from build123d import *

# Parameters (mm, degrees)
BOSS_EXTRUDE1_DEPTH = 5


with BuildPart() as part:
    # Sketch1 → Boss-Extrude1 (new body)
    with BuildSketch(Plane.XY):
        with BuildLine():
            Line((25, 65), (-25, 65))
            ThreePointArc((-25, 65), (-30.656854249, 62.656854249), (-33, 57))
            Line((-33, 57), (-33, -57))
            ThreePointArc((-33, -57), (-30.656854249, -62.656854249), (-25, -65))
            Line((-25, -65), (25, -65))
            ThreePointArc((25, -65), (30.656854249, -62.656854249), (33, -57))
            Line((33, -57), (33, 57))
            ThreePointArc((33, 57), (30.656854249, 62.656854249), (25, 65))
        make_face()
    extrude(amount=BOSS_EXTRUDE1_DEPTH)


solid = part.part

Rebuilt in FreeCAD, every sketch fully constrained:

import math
import FreeCAD as App
import Part
import Sketcher

doc = App.newDocument("Part")
params = doc.addObject("Spreadsheet::Sheet", "Params")
for row, (alias, value) in enumerate([
    ("sketch1_radius", "8 mm"),
    ("sketch1_width", "50 mm"),
    ("sketch1_height", "114 mm"),
    ("pad1_length", "5 mm"),
], start=1):
    params.set(f"A{row}", alias)
    params.set(f"B{row}", "=" + value)
    params.setAlias(f"B{row}", alias)

body = doc.addObject("PartDesign::Body", "Body")

sketch1 = doc.addObject("Sketcher::SketchObject", "Sketch")
body.addObject(sketch1)
sketch1.AttachmentSupport = (doc.XY_Plane, [""])
sketch1.MapMode = "FlatFace"
sketch1.addGeometry([
    Part.LineSegment(App.Vector(25, 65, 0), App.Vector(-25, 65, 0)),
    Part.ArcOfCircle(Part.Circle(App.Vector(-25, 57, 0), App.Vector(0, 0, 1), 8), math.radians(90), math.radians(180)),
    Part.LineSegment(App.Vector(-33, 57, 0), App.Vector(-33, -57, 0)),
    Part.ArcOfCircle(Part.Circle(App.Vector(-25, -57, 0), App.Vector(0, 0, 1), 8), math.radians(-180), math.radians(-90)),
    Part.LineSegment(App.Vector(-25, -65, 0), App.Vector(25, -65, 0)),
    Part.ArcOfCircle(Part.Circle(App.Vector(25, -57, 0), App.Vector(0, 0, 1), 8), math.radians(-90), math.radians(0)),
    Part.LineSegment(App.Vector(33, -57, 0), App.Vector(33, 57, 0)),
    Part.ArcOfCircle(Part.Circle(App.Vector(25, 57, 0), App.Vector(0, 0, 1), 8), math.radians(0), math.radians(90)),
], False)
sketch1.addConstraint([
    Sketcher.Constraint("Tangent", 0, 2, 1, 1),
    Sketcher.Constraint("Tangent", 1, 2, 2, 1),
    Sketcher.Constraint("Tangent", 2, 2, 3, 1),
    Sketcher.Constraint("Tangent", 3, 2, 4, 1),
    Sketcher.Constraint("Tangent", 4, 2, 5, 1),
    Sketcher.Constraint("Tangent", 5, 2, 6, 1),
    Sketcher.Constraint("Tangent", 6, 2, 7, 1),
    Sketcher.Constraint("Tangent", 7, 2, 0, 1),
    Sketcher.Constraint("Horizontal", 0),
    Sketcher.Constraint("Vertical", 2),
    Sketcher.Constraint("Horizontal", 4),
    Sketcher.Constraint("Vertical", 6),
    Sketcher.Constraint("Equal", 1, 3),
    Sketcher.Constraint("Equal", 3, 5),
    Sketcher.Constraint("Equal", 5, 7),
    Sketcher.Constraint("Symmetric", 1, 3, 5, 3, -1, 1),
    Sketcher.Constraint("Radius", 1, 8.0),
    Sketcher.Constraint("DistanceX", 0, 2, 0, 1, 50.0),
    Sketcher.Constraint("DistanceY", 2, 2, 2, 1, 114.0),
])
sketch1.setExpression("Constraints[16]", "Params.sketch1_radius")
sketch1.setExpression("Constraints[17]", "Params.sketch1_width")
sketch1.setExpression("Constraints[18]", "Params.sketch1_height")
pad1 = doc.addObject("PartDesign::Pad", "Pad")
body.addObject(pad1)
pad1.Profile = sketch1
pad1.setExpression("Length", "Params.pad1_length")

doc.recompute()
